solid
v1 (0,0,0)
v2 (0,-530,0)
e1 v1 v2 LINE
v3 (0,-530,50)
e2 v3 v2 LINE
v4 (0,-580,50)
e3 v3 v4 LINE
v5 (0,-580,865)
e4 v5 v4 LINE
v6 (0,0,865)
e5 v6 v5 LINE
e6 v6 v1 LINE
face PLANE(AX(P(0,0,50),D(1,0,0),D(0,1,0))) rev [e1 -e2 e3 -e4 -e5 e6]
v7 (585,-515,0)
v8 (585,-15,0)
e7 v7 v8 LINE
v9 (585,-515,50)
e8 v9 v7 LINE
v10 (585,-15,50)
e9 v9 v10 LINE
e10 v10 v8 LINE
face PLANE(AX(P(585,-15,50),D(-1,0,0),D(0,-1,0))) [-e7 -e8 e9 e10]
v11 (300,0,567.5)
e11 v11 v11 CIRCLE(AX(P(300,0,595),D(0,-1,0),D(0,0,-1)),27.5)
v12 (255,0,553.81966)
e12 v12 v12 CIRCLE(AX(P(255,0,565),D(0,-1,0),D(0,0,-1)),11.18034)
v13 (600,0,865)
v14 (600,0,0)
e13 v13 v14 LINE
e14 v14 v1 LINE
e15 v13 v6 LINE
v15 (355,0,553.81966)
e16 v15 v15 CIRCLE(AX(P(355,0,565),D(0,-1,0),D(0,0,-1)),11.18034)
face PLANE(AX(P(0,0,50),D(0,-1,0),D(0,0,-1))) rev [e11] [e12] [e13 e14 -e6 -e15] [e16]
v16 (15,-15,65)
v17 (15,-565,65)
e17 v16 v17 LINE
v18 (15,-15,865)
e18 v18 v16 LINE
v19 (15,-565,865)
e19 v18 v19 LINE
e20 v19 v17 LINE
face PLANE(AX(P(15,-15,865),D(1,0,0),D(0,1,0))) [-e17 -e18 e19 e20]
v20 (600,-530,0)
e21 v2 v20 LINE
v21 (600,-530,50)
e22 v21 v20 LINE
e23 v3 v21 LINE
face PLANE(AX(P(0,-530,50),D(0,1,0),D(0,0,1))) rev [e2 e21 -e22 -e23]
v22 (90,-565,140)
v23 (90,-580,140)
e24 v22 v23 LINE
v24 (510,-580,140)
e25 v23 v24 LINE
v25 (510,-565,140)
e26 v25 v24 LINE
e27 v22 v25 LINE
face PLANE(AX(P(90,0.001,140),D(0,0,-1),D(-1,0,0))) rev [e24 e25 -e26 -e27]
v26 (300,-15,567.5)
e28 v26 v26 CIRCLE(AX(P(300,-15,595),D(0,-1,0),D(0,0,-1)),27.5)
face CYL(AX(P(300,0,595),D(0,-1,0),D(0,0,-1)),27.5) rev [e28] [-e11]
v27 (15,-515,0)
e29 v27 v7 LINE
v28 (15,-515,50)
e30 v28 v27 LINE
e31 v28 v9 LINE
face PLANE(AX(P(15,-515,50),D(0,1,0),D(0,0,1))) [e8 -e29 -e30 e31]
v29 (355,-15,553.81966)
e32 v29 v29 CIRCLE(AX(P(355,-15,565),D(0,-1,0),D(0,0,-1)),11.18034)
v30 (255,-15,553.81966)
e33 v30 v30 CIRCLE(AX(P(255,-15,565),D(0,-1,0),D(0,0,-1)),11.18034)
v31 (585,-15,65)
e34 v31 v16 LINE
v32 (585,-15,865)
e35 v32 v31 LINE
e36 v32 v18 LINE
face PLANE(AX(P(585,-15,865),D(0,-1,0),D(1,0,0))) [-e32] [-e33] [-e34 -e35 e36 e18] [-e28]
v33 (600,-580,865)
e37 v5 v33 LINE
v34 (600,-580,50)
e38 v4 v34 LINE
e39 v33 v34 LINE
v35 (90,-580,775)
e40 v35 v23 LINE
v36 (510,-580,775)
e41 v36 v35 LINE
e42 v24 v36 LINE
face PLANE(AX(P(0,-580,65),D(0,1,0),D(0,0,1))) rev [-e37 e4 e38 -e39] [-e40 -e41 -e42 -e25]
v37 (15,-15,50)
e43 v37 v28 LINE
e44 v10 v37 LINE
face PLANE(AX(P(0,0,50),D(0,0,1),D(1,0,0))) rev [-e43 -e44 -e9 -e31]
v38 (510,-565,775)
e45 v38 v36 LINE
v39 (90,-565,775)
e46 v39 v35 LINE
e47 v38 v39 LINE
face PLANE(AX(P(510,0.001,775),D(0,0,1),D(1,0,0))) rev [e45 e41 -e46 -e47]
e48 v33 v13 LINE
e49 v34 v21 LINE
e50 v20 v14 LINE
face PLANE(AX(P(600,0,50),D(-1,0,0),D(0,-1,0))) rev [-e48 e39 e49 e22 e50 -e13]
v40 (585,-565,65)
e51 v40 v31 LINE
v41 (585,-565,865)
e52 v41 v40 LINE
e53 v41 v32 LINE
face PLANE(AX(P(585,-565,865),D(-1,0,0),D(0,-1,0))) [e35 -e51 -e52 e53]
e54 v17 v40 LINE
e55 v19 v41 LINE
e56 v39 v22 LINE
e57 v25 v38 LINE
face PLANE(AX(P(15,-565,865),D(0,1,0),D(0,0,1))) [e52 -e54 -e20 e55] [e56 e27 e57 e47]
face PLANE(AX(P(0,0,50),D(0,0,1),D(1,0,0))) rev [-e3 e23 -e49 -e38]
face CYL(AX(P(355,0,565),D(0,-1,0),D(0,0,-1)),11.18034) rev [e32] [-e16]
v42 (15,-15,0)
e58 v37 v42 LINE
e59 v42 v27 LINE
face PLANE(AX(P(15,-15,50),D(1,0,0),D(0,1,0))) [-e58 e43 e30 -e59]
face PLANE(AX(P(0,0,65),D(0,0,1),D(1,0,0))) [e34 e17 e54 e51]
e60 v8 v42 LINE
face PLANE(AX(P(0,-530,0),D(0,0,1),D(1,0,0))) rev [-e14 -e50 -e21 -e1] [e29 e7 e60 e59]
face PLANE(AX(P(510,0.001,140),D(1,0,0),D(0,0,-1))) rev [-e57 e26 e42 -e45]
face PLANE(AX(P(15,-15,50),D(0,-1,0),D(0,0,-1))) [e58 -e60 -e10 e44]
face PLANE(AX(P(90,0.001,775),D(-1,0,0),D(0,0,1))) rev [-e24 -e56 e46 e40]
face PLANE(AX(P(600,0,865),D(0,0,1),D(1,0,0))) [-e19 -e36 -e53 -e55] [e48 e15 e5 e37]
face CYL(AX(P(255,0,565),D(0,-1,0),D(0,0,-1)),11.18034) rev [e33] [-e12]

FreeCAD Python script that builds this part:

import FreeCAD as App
import Part
import Sketcher
Q = App.Units.Quantity

doc = App.newDocument("Part")
body = doc.addObject("PartDesign::Body", "Body")

sketch1 = body.newObject("Sketcher::SketchObject", "Sketch")
sketch1.AttachmentSupport = (doc.getObject("XY_Plane"), [""])
sketch1.MapMode = "FlatFace"
sketch1.addGeometry([
    Part.LineSegment(App.Vector(0, 0, 0), App.Vector(0, -530, 0)),
    Part.LineSegment(App.Vector(0, -530, 0), App.Vector(600, -530, 0)),
    Part.LineSegment(App.Vector(600, -530, 0), App.Vector(600, 0, 0)),
    Part.LineSegment(App.Vector(600, 0, 0), App.Vector(0, 0, 0)),
    Part.LineSegment(App.Vector(585, -515, 0), App.Vector(15, -515, 0)),
    Part.LineSegment(App.Vector(15, -515, 0), App.Vector(15, -15, 0)),
    Part.LineSegment(App.Vector(15, -15, 0), App.Vector(585, -15, 0)),
    Part.LineSegment(App.Vector(585, -15, 0), App.Vector(585, -515, 0)),
], False)
sketch1.addConstraint([
    Sketcher.Constraint("Coincident", 0, 2, 1, 1),
    Sketcher.Constraint("Coincident", 1, 2, 2, 1),
    Sketcher.Constraint("Coincident", 2, 2, 3, 1),
    Sketcher.Constraint("Coincident", 3, 2, 0, 1),
    Sketcher.Constraint("Coincident", 4, 2, 5, 1),
    Sketcher.Constraint("Coincident", 5, 2, 6, 1),
    Sketcher.Constraint("Coincident", 6, 2, 7, 1),
    Sketcher.Constraint("Coincident", 7, 2, 4, 1),
    Sketcher.Constraint("Vertical", 0),
    Sketcher.Constraint("Horizontal", 1),
    Sketcher.Constraint("Vertical", 2),
    Sketcher.Constraint("Horizontal", 3),
    Sketcher.Constraint("Horizontal", 4),
    Sketcher.Constraint("Vertical", 5),
    Sketcher.Constraint("Horizontal", 6),
    Sketcher.Constraint("Vertical", 7),
    Sketcher.Constraint("Coincident", 3, 2, -1, 1),
    Sketcher.Constraint("DistanceX", 1, 1, 1, 2, Q("600 mm")),
    Sketcher.Constraint("DistanceX", 4, 2, 4, 1, Q("570 mm")),
    Sketcher.Constraint("DistanceY", 0, 2, 0, 1, Q("530 mm")),
    Sketcher.Constraint("DistanceY", 5, 1, 5, 2, Q("500 mm")),
    Sketcher.Constraint("DistanceX", -1, 1, 4, 2, Q("15 mm")),
    Sketcher.Constraint("DistanceY", 4, 2, -1, 1, Q("515 mm")),
])
pad1 = body.newObject("PartDesign::Pad", "Pad")
pad1.Profile = sketch1
pad1.Length = 50

sketch2 = body.newObject("Sketcher::SketchObject", "Sketch001")
sketch2.AttachmentSupport = (doc.getObject("XY_Plane"), [""])
sketch2.MapMode = "FlatFace"
sketch2.AttachmentOffset = App.Placement(App.Vector(0, 0, 50), App.Rotation())
sketch2.addGeometry([
    Part.LineSegment(App.Vector(0, 0, 0), App.Vector(0, -580, 0)),
    Part.LineSegment(App.Vector(0, -580, 0), App.Vector(600, -580, 0)),
    Part.LineSegment(App.Vector(600, -580, 0), App.Vector(600, 0, 0)),
    Part.LineSegment(App.Vector(600, 0, 0), App.Vector(0, 0, 0)),
], False)
sketch2.addConstraint([
    Sketcher.Constraint("Coincident", 0, 2, 1, 1),
    Sketcher.Constraint("Coincident", 1, 2, 2, 1),
    Sketcher.Constraint("Coincident", 2, 2, 3, 1),
    Sketcher.Constraint("Coincident", 3, 2, 0, 1),
    Sketcher.Constraint("Vertical", 0),
    Sketcher.Constraint("Horizontal", 1),
    Sketcher.Constraint("Vertical", 2),
    Sketcher.Constraint("Horizontal", 3),
    Sketcher.Constraint("Coincident", 3, 2, -1, 1),
    Sketcher.Constraint("DistanceX", 1, 1, 1, 2, Q("600 mm")),
    Sketcher.Constraint("DistanceY", 0, 2, 0, 1, Q("580 mm")),
])
pad2 = body.newObject("PartDesign::Pad", "Pad001")
pad2.Profile = sketch2
pad2.Length = 15

sketch3 = body.newObject("Sketcher::SketchObject", "Sketch002")
sketch3.AttachmentSupport = (doc.getObject("XY_Plane"), [""])
sketch3.MapMode = "FlatFace"
sketch3.AttachmentOffset = App.Placement(App.Vector(0, 0, 65), App.Rotation())
sketch3.addGeometry([
    Part.LineSegment(App.Vector(0, 0, 0), App.Vector(0, -580, 0)),
    Part.LineSegment(App.Vector(0, -580, 0), App.Vector(600, -580, 0)),
    Part.LineSegment(App.Vector(600, -580, 0), App.Vector(600, 0, 0)),
    Part.LineSegment(App.Vector(600, 0, 0), App.Vector(0, 0, 0)),
    Part.LineSegment(App.Vector(585, -565, 0), App.Vector(15, -565, 0)),
    Part.LineSegment(App.Vector(15, -565, 0), App.Vector(15, -15, 0)),
    Part.LineSegment(App.Vector(15, -15, 0), App.Vector(585, -15, 0)),
    Part.LineSegment(App.Vector(585, -15, 0), App.Vector(585, -565, 0)),
], False)
sketch3.addConstraint([
    Sketcher.Constraint("Coincident", 0, 2, 1, 1),
    Sketcher.Constraint("Coincident", 1, 2, 2, 1),
    Sketcher.Constraint("Coincident", 2, 2, 3, 1),
    Sketcher.Constraint("Coincident", 3, 2, 0, 1),
    Sketcher.Constraint("Coincident", 4, 2, 5, 1),
    Sketcher.Constraint("Coincident", 5, 2, 6, 1),
    Sketcher.Constraint("Coincident", 6, 2, 7, 1),
    Sketcher.Constraint("Coincident", 7, 2, 4, 1),
    Sketcher.Constraint("Vertical", 0),
    Sketcher.Constraint("Horizontal", 1),
    Sketcher.Constraint("Vertical", 2),
    Sketcher.Constraint("Horizontal", 3),
    Sketcher.Constraint("Horizontal", 4),
    Sketcher.Constraint("Vertical", 5),
    Sketcher.Constraint("Horizontal", 6),
    Sketcher.Constraint("Vertical", 7),
    Sketcher.Constraint("Coincident", 3, 2, -1, 1),
    Sketcher.Constraint("DistanceX", 1, 1, 1, 2, Q("600 mm")),
    Sketcher.Constraint("DistanceX", 4, 2, 4, 1, Q("570 mm")),
    Sketcher.Constraint("DistanceY", 0, 2, 0, 1, Q("580 mm")),
    Sketcher.Constraint("DistanceY", 5, 1, 5, 2, Q("550 mm")),
    Sketcher.Constraint("DistanceX", -1, 1, 4, 2, Q("15 mm")),
    Sketcher.Constraint("DistanceY", 4, 2, -1, 1, Q("565 mm")),
])
pad3 = body.newObject("PartDesign::Pad", "Pad002")
pad3.Profile = sketch3
pad3.Length = 800

sketch4 = body.newObject("Sketcher::SketchObject", "Sketch003")
sketch4.AttachmentSupport = (doc.getObject("XZ_Plane"), [""])
sketch4.MapMode = "FlatFace"
sketch4.AttachmentOffset = App.Placement(App.Vector(0, 0, 580), App.Rotation())
sketch4.addGeometry([
    Part.LineSegment(App.Vector(90, 775, 0), App.Vector(90, 140, 0)),
    Part.LineSegment(App.Vector(90, 140, 0), App.Vector(510, 140, 0)),
    Part.LineSegment(App.Vector(510, 140, 0), App.Vector(510, 775, 0)),
    Part.LineSegment(App.Vector(510, 775, 0), App.Vector(90, 775, 0)),
], False)
sketch4.addConstraint([
    Sketcher.Constraint("Coincident", 0, 2, 1, 1),
    Sketcher.Constraint("Coincident", 1, 2, 2, 1),
    Sketcher.Constraint("Coincident", 2, 2, 3, 1),
    Sketcher.Constraint("Coincident", 3, 2, 0, 1),
    Sketcher.Constraint("Vertical", 0),
    Sketcher.Constraint("Horizontal", 1),
    Sketcher.Constraint("Vertical", 2),
    Sketcher.Constraint("Horizontal", 3),
    Sketcher.Constraint("DistanceX", 1, 1, 1, 2, Q("420 mm")),
    Sketcher.Constraint("DistanceY", 0, 2, 0, 1, Q("635 mm")),
    Sketcher.Constraint("DistanceX", -1, 1, 0, 2, Q("90 mm")),
    Sketcher.Constraint("DistanceY", -1, 1, 0, 2, Q("140 mm")),
])
pocket1 = body.newObject("PartDesign::Pocket", "Pocket")
pocket1.Profile = sketch4
pocket1.Type = "UpToFirst"

sketch5 = body.newObject("Sketcher::SketchObject", "Sketch004")
sketch5.AttachmentSupport = (doc.getObject("XZ_Plane"), [""])
sketch5.MapMode = "FlatFace"
sketch5.AttachmentOffset = App.Placement(App.Vector(0, 0, 15), App.Rotation())
sketch5.addGeometry([
    Part.Circle(App.Vector(355, 565, 0), App.Vector(0, 0, 1), 11),
    Part.Circle(App.Vector(255, 565, 0), App.Vector(0, 0, 1), 11),
    Part.Circle(App.Vector(300, 595, 0), App.Vector(0, 0, 1), 28),
], False)
sketch5.addConstraint([
    Sketcher.Constraint("Equal", 0, 1),
    Sketcher.Constraint("Horizontal", 0, 3, 1, 3),
    Sketcher.Constraint("Diameter", 2, Q("55 mm")),
    Sketcher.Constraint("DistanceX", -1, 1, 0, 3, Q("355 mm")),
    Sketcher.Constraint("DistanceY", -1, 1, 0, 3, Q("565 mm")),
    Sketcher.Constraint("DistanceX", -1, 1, 1, 3, Q("255 mm")),
    Sketcher.Constraint("DistanceX", -1, 1, 2, 3, Q("300 mm")),
    Sketcher.Constraint("DistanceY", -1, 1, 2, 3, Q("595 mm")),
    Sketcher.Constraint("Diameter", 0, Q("22.36068 mm")),
])
pocket2 = body.newObject("PartDesign::Pocket", "Pocket001")
pocket2.Profile = sketch5
pocket2.Type = "ThroughAll"

doc.recompute()
